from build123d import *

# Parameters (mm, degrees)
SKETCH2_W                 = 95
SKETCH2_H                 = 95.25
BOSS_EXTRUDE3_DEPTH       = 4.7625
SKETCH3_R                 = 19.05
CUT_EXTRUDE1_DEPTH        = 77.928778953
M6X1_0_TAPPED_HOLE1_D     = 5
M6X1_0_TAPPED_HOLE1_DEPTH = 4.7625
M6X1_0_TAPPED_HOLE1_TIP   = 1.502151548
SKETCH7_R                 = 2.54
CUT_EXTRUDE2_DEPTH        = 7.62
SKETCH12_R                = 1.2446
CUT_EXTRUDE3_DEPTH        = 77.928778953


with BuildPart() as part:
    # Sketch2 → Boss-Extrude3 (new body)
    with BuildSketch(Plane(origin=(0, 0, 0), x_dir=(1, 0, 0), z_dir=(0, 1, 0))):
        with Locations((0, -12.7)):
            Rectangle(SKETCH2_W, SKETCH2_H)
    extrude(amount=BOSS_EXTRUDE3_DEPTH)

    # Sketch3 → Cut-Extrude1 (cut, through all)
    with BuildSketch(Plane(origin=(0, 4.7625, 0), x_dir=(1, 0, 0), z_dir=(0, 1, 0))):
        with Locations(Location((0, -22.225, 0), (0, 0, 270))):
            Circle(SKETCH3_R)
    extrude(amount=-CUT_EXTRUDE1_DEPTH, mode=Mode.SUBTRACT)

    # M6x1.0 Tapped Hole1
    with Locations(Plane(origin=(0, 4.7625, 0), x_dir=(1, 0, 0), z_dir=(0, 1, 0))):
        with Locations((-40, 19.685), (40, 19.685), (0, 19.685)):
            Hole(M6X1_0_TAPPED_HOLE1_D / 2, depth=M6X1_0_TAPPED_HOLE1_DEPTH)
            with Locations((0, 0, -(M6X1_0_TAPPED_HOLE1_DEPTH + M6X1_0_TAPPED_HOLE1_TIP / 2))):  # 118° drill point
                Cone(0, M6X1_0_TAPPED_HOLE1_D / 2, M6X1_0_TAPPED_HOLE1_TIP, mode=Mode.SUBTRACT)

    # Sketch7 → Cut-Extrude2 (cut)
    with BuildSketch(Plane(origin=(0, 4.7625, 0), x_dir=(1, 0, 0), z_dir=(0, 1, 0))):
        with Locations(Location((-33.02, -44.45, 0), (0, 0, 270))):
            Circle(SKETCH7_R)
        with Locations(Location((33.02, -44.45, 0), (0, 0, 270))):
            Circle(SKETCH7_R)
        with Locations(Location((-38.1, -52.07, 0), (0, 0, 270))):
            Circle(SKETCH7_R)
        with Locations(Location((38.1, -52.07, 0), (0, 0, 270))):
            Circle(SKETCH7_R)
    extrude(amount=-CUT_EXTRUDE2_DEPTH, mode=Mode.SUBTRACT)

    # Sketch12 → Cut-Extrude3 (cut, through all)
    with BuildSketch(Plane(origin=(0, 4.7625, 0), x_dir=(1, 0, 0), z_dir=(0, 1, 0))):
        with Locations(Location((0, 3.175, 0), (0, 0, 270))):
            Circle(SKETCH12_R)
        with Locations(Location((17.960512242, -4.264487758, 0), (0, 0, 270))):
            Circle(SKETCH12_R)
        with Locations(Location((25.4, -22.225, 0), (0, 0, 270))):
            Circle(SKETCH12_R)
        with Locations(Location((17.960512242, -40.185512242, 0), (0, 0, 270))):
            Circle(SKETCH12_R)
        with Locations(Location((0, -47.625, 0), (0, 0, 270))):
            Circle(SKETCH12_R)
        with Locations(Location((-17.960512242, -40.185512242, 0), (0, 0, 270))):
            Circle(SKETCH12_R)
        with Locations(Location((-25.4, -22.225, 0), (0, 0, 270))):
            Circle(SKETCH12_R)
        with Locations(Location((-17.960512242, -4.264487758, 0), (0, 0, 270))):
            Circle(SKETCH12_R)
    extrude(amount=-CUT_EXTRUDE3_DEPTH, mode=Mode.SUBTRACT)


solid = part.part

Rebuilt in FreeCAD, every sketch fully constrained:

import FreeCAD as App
import Part
import Sketcher
from FreeCAD import Vector
Q = App.Units.Quantity

doc = App.newDocument("Part")
body = doc.addObject("PartDesign::Body", "Body")

# Sketch on XZ plane
sketch1 = body.newObject("Sketcher::SketchObject", "Sketch")
sketch1.AttachmentSupport = (doc.getObject("XZ_Plane"), [""])
sketch1.MapMode = "FlatFace"
sketch1.addGeometry(Part.LineSegment(Vector(-47.5, -34.925, 0), Vector(-47.5, 60.325, 0)), False)
sketch1.addGeometry(Part.LineSegment(Vector(-47.5, 60.325, 0), Vector(47.5, 60.325, 0)), False)
sketch1.addGeometry(Part.LineSegment(Vector(47.5, 60.325, 0), Vector(47.5, -34.925, 0)), False)
sketch1.addGeometry(Part.LineSegment(Vector(47.5, -34.925, 0), Vector(-47.5, -34.925, 0)), False)
sketch1.addConstraint(Sketcher.Constraint("Coincident", 0, 2, 1, 1))
sketch1.addConstraint(Sketcher.Constraint("Coincident", 1, 2, 2, 1))
sketch1.addConstraint(Sketcher.Constraint("Coincident", 2, 2, 3, 1))
sketch1.addConstraint(Sketcher.Constraint("Coincident", 3, 2, 0, 1))
sketch1.addConstraint(Sketcher.Constraint("Vertical", 0))
sketch1.addConstraint(Sketcher.Constraint("Horizontal", 1))
sketch1.addConstraint(Sketcher.Constraint("Vertical", 2))
sketch1.addConstraint(Sketcher.Constraint("Horizontal", 3))
sketch1.addConstraint(Sketcher.Constraint("DistanceY", 0, 1, 0, 2, Q("3.75 in")))
sketch1.addConstraint(Sketcher.Constraint("DistanceY", -1, 1, 0, 2, Q("2.375 in")))
sketch1.addConstraint(Sketcher.Constraint("DistanceX", 1, 1, 1, 2, 95.0))
sketch1.addConstraint(Sketcher.Constraint("DistanceX", 0, 2, -1, 1, 47.5))
pad1 = body.newObject("PartDesign::Pad", "Pad")
pad1.Profile = sketch1
pad1.Length = Q("0.1875 in")
pad1.Reversed = True

# Sketch on XZ plane
sketch2 = body.newObject("Sketcher::SketchObject", "Sketch001")
sketch2.AttachmentSupport = (doc.getObject("XZ_Plane"), [""])
sketch2.MapMode = "FlatFace"
sketch2.AttachmentOffset = App.Placement(Vector(0, 0, -0.1875 * 25.4), App.Rotation())
sketch2.addGeometry(Part.Circle(Vector(0, 22.225, 0), Vector(0, 0, 1), 19.05), False)
sketch2.addConstraint(Sketcher.Constraint("PointOnObject", 0, 3, -2))
sketch2.addConstraint(Sketcher.Constraint("Diameter", 0, Q("1.5 in")))
sketch2.addConstraint(Sketcher.Constraint("DistanceY", -1, 1, 0, 3, Q("0.875 in")))
pocket1 = body.newObject("PartDesign::Pocket", "Pocket")
pocket1.Profile = sketch2
pocket1.Type = "ThroughAll"
pocket1.Reversed = True

# Sketch on XZ plane
sketch3 = body.newObject("Sketcher::SketchObject", "Sketch002")
sketch3.AttachmentSupport = (doc.getObject("XZ_Plane"), [""])
sketch3.MapMode = "FlatFace"
sketch3.AttachmentOffset = App.Placement(Vector(0, 0, -0.1875 * 25.4), App.Rotation())
sketch3.addGeometry(Part.Circle(Vector(-40, -19.685, 0), Vector(0, 0, 1), 2.5), False)
sketch3.addGeometry(Part.Circle(Vector(40, -19.685, 0), Vector(0, 0, 1), 2.5), False)
sketch3.addGeometry(Part.Circle(Vector(0, -19.685, 0), Vector(0, 0, 1), 2.5), False)
sketch3.addConstraint(Sketcher.Constraint("Equal", 0, 1))
sketch3.addConstraint(Sketcher.Constraint("Equal", 1, 2))
sketch3.addConstraint(Sketcher.Constraint("Symmetric", 0, 3, 1, 3, -2))
sketch3.addConstraint(Sketcher.Constraint("PointOnObject", 2, 3, -2))
sketch3.addConstraint(Sketcher.Constraint("Horizontal", 1, 3, 2, 3))
sketch3.addConstraint(Sketcher.Constraint("Diameter", 0, 5.0))
sketch3.addConstraint(Sketcher.Constraint("DistanceY", 0, 3, -1, 1, Q("0.775 in")))
sketch3.addConstraint(Sketcher.Constraint("DistanceX", 0, 3, -1, 1, 40.0))
doc.recompute()
hole = body.newObject("PartDesign::Hole", "Hole")
hole.Profile = sketch3
hole.ThreadType = "None"
hole.Diameter = 5
hole.DepthType = "Dimension"
hole.Depth = Q("0.1875 in")
hole.DrillPoint = "Angled"
hole.DrillPointAngle = 118
hole.Reversed = True

# Sketch on XZ plane
sketch4 = body.newObject("Sketcher::SketchObject", "Sketch003")
sketch4.AttachmentSupport = (doc.getObject("XZ_Plane"), [""])
sketch4.MapMode = "FlatFace"
sketch4.AttachmentOffset = App.Placement(Vector(0, 0, -0.1875 * 25.4), App.Rotation())
sketch4.addGeometry(Part.Circle(Vector(-33.02, 44.45, 0), Vector(0, 0, 1), 2.54), False)
sketch4.addGeometry(Part.Circle(Vector(33.02, 44.45, 0), Vector(0, 0, 1), 2.54), False)
sketch4.addGeometry(Part.Circle(Vector(-38.1, 52.07, 0), Vector(0, 0, 1), 2.54), False)
sketch4.addGeometry(Part.Circle(Vector(38.1, 52.07, 0), Vector(0, 0, 1), 2.54), False)
sketch4.addConstraint(Sketcher.Constraint("Equal", 0, 1))
sketch4.addConstraint(Sketcher.Constraint("Equal", 1, 2))
sketch4.addConstraint(Sketcher.Constraint("Equal", 2, 3))
sketch4.addConstraint(Sketcher.Constraint("Symmetric", 0, 3, 1, 3, -2))
sketch4.addConstraint(Sketcher.Constraint("Symmetric", 2, 3, 3, 3, -2))
sketch4.addConstraint(Sketcher.Constraint("Diameter", 0, Q("0.2 in")))
sketch4.addConstraint(Sketcher.Constraint("DistanceX", 2, 3, 3, 3, Q("3 in")))
sketch4.addConstraint(Sketcher.Constraint("DistanceX", 0, 3, -1, 1, Q("1.3 in")))
sketch4.addConstraint(Sketcher.Constraint("DistanceY", 0, 3, 2, 3, Q("0.3 in")))
sketch4.addConstraint(Sketcher.Constraint("DistanceY", -1, 1, 0, 3, Q("1.75 in")))
pocket2 = body.newObject("PartDesign::Pocket", "Pocket001")
pocket2.Profile = sketch4
pocket2.Length = Q("0.3 in")
pocket2.Reversed = True

# Sketch on XZ plane
sketch5 = body.newObject("Sketcher::SketchObject", "Sketch004")
sketch5.AttachmentSupport = (doc.getObject("XZ_Plane"), [""])
sketch5.MapMode = "FlatFace"
sketch5.AttachmentOffset = App.Placement(Vector(0, 0, -0.1875 * 25.4), App.Rotation())
sketch5.addGeometry(Part.Circle(Vector(0, -3.175, 0), Vector(0, 0, 1), 1.2446), False)
sketch5.addGeometry(Part.Circle(Vector(17.960512, 4.264488, 0), Vector(0, 0, 1), 1.2446), False)
sketch5.addGeometry(Part.Circle(Vector(25.4, 22.225, 0), Vector(0, 0, 1), 1.2446), False)
sketch5.addGeometry(Part.Circle(Vector(17.960512, 40.185512, 0), Vector(0, 0, 1), 1.2446), False)
sketch5.addGeometry(Part.Circle(Vector(0, 47.625, 0), Vector(0, 0, 1), 1.2446), False)
sketch5.addGeometry(Part.Circle(Vector(-17.960512, 40.185512, 0), Vector(0, 0, 1), 1.2446), False)
sketch5.addGeometry(Part.Circle(Vector(-25.4, 22.225, 0), Vector(0, 0, 1), 1.2446), False)
sketch5.addGeometry(Part.Circle(Vector(-17.960512, 4.264488, 0), Vector(0, 0, 1), 1.2446), False)
sketch5.addConstraint(Sketcher.Constraint("Equal", 0, 1))
sketch5.addConstraint(Sketcher.Constraint("Equal", 1, 2))
sketch5.addConstraint(Sketcher.Constraint("Equal", 2, 3))
sketch5.addConstraint(Sketcher.Constraint("Equal", 3, 4))
sketch5.addConstraint(Sketcher.Constraint("Equal", 4, 5))
sketch5.addConstraint(Sketcher.Constraint("Equal", 5, 6))
sketch5.addConstraint(Sketcher.Constraint("Equal", 6, 7))
sketch5.addConstraint(Sketcher.Constraint("Symmetric", 3, 3, 5, 3, -2))
sketch5.addConstraint(Sketcher.Constraint("Symmetric", 2, 3, 6, 3, -2))
sketch5.addConstraint(Sketcher.Constraint("Symmetric", 1, 3, 7, 3, -2))
sketch5.addConstraint(Sketcher.Constraint("PointOnObject", 0, 3, -2))
sketch5.addConstraint(Sketcher.Constraint("PointOnObject", 4, 3, -2))
sketch5.addConstraint(Sketcher.Constraint("Vertical", 1, 3, 3, 3))
sketch5.addConstraint(Sketcher.Constraint("Diameter", 0, Q("0.098 in")))
sketch5.addConstraint(Sketcher.Constraint("DistanceX", -1, 1, 2, 3, Q("1 in")))
sketch5.addConstraint(Sketcher.Constraint("DistanceY", 0, 3, 2, 3, Q("1 in")))
sketch5.addConstraint(Sketcher.Constraint("DistanceY", 2, 3, 4, 3, Q("1 in")))
sketch5.addConstraint(Sketcher.Constraint("DistanceY", 0, 3, -1, 1, Q("0.125 in")))
sketch5.addConstraint(Sketcher.Constraint("DistanceX", -1, 1, 1, 3, 17.960512))
sketch5.addConstraint(Sketcher.Constraint("DistanceY", -1, 1, 1, 3, 4.264488))
sketch5.addConstraint(Sketcher.Constraint("DistanceY", -1, 1, 3, 3, 40.185512))
pocket3 = body.newObject("PartDesign::Pocket", "Pocket002")
pocket3.Profile = sketch5
pocket3.Type = "ThroughAll"
pocket3.Reversed = True

doc.recompute()
